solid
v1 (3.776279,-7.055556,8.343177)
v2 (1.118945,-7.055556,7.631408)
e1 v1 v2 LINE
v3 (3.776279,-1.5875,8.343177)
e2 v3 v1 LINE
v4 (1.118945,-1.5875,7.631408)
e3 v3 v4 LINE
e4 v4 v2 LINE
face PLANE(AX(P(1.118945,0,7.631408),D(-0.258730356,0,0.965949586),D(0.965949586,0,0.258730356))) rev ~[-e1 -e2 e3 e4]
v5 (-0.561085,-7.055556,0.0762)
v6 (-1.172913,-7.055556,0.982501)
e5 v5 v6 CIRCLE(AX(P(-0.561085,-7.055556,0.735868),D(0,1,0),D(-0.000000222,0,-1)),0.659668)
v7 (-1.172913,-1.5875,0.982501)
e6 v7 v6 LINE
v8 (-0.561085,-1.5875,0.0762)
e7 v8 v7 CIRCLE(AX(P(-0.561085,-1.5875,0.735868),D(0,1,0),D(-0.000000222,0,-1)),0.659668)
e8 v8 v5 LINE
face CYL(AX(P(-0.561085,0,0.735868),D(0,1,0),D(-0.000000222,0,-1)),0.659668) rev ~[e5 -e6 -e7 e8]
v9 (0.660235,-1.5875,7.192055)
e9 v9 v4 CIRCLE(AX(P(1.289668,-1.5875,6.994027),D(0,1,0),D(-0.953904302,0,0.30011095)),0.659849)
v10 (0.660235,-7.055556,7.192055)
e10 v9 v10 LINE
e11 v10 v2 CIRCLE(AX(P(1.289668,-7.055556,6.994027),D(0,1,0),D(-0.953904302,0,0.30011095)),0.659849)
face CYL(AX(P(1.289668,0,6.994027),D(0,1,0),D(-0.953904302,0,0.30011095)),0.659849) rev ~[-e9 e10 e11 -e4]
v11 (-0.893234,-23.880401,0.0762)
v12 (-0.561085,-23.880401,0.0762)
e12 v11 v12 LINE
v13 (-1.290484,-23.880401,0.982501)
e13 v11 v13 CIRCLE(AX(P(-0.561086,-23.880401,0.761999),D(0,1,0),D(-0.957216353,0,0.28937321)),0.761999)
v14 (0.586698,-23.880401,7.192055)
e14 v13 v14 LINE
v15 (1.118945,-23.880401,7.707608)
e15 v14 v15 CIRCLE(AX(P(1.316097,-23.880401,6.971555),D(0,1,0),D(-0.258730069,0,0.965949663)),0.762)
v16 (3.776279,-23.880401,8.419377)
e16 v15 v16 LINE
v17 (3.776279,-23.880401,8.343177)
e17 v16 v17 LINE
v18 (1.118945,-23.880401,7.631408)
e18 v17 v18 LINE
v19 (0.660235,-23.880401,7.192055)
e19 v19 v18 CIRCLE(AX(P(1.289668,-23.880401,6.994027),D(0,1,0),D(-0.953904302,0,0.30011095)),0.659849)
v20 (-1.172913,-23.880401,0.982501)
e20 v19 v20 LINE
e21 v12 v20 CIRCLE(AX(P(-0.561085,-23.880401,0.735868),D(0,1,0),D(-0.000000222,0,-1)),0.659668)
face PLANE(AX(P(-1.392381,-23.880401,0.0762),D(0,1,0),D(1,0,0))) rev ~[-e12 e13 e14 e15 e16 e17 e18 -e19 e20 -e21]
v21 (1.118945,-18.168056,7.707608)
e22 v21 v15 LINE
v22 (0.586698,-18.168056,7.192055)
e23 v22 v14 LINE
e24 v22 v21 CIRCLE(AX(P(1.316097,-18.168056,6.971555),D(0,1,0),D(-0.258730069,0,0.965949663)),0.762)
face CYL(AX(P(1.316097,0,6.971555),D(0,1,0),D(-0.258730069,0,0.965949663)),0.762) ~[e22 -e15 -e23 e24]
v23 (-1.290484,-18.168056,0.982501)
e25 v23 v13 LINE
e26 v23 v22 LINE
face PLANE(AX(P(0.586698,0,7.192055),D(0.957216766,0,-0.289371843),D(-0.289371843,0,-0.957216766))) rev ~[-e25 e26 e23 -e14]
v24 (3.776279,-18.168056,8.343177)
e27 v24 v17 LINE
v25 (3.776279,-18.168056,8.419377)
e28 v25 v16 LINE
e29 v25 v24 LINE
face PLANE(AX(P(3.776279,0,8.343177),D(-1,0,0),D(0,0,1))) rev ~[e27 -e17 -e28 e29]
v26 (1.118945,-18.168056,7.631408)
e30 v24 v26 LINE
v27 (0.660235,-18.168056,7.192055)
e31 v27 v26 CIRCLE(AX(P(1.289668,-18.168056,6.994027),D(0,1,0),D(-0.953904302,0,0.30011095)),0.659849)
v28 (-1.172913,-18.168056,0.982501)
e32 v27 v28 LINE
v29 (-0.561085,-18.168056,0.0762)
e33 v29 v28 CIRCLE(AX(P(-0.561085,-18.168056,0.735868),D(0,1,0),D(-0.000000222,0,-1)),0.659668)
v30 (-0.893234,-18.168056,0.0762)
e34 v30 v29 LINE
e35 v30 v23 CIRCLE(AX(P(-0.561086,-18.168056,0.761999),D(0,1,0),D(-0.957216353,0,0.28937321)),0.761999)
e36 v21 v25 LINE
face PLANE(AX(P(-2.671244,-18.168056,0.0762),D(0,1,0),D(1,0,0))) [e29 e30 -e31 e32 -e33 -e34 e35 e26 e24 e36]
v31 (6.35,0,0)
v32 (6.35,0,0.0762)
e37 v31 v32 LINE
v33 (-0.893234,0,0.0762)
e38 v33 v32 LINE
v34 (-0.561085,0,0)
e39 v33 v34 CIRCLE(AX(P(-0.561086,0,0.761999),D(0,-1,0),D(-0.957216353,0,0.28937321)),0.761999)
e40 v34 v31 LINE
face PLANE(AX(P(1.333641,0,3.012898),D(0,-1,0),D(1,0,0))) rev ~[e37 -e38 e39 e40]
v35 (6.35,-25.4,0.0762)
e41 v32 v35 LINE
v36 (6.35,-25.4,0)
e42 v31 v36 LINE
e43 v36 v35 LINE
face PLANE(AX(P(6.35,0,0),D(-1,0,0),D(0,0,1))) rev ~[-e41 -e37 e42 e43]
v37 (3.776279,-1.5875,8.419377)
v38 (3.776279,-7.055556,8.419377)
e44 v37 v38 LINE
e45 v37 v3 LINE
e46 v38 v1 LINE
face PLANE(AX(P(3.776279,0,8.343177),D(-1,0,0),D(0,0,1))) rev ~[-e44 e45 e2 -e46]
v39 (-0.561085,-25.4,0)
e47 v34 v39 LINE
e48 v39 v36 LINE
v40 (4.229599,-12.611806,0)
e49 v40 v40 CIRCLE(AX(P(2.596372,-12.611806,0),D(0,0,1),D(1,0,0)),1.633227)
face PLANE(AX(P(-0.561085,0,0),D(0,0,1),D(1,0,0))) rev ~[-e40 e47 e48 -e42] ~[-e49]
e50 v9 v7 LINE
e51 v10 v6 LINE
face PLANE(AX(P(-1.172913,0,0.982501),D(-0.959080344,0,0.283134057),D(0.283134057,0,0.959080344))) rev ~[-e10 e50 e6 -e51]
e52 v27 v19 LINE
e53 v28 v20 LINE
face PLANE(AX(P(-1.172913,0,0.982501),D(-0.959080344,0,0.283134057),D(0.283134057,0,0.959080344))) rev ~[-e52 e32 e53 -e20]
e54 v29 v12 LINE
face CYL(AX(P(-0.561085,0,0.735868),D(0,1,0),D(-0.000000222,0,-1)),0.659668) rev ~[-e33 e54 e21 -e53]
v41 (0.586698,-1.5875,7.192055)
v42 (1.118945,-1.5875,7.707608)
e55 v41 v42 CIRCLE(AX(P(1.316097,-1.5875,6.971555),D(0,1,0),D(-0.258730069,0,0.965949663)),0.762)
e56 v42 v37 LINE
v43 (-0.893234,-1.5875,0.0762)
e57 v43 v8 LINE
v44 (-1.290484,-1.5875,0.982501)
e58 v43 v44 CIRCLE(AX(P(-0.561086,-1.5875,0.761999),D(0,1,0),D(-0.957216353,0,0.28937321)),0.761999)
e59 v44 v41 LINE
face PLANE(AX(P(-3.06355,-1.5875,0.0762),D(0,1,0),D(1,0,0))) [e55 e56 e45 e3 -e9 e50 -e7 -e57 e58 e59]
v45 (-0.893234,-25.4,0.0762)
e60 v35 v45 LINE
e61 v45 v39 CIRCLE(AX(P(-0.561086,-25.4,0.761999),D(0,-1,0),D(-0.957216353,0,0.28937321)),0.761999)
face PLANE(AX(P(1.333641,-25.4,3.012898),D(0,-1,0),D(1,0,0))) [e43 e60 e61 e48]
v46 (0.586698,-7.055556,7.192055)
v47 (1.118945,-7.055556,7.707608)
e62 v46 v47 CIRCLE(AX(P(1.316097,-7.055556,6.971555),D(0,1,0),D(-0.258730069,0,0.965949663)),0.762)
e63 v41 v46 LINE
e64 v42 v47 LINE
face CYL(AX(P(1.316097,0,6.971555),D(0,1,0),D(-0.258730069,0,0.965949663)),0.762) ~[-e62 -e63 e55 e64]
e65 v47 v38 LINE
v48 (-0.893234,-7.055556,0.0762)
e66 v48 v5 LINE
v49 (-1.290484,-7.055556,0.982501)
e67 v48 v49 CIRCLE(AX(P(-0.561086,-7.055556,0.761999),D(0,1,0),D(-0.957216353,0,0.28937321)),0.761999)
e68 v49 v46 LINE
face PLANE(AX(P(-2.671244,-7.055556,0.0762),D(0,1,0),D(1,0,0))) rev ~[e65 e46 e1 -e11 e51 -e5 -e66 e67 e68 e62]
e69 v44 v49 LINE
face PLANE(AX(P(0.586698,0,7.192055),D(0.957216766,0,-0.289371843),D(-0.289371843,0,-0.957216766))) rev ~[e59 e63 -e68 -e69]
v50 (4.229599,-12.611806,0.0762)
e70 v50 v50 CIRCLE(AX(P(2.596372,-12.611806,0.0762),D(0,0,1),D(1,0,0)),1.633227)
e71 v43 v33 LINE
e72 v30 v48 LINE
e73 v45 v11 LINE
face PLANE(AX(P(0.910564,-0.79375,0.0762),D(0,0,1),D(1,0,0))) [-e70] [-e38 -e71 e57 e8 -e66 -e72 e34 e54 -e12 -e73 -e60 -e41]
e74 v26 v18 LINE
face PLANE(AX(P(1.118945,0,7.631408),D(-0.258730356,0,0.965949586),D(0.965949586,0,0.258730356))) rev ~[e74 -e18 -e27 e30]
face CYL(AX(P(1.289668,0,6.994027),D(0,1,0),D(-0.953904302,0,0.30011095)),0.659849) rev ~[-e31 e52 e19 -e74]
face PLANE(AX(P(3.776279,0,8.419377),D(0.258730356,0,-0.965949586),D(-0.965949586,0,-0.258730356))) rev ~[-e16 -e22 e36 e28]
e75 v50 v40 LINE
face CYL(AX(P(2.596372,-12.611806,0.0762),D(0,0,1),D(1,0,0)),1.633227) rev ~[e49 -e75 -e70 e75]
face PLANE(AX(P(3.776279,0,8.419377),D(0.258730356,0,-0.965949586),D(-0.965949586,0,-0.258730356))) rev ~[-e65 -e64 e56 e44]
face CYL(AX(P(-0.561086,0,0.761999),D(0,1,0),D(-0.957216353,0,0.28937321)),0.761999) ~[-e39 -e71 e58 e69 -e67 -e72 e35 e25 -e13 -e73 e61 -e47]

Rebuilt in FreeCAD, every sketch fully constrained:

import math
import FreeCAD as App
import Part
import Sketcher
from FreeCAD import Vector
Q = App.Units.Quantity


def add_polygon(sketch, points):
    """Adds a closed chain of lines whose ends are joined by coincident constraints."""
    first, n = sketch.GeometryCount, len(points)
    for a, b in zip(points, points[1:] + points[:1]):
        sketch.addGeometry(Part.LineSegment(App.Vector(*a, 0), App.Vector(*b, 0)), False)
    for i in range(n):
        sketch.addConstraint(Sketcher.Constraint("Coincident", first + i, 2, first + (i + 1) % n, 1))

doc = App.newDocument("Part")
body = doc.addObject("PartDesign::Body", "Body")

sketch1 = body.newObject("Sketcher::SketchObject", "Sketch")
sketch1.AttachmentSupport = (doc.getObject("XZ_Plane"), [""])
sketch1.MapMode = "FlatFace"
sketch1.addGeometry([
    Part.LineSegment(Vector(-0.56, 0, 0), Vector(6.35, 0, 0)),
    Part.LineSegment(Vector(6.35, 0, 0), Vector(6.35, 0.08, 0)),
    Part.LineSegment(Vector(6.35, 0.08, 0), Vector(-0.56, 0.08, 0)),
    Part.ArcOfCircle(Part.Circle(Vector(-0.56, 0.74, 0), Vector(0, 0, 1), 0.66), math.radians(158), math.radians(270)),
    Part.LineSegment(Vector(-1.17, 0.98, 0), Vector(0.66, 7.19, 0)),
    Part.ArcOfCircle(Part.Circle(Vector(1.29, 6.99, 0), Vector(0, 0, 1), 0.66), math.radians(105), math.radians(163)),
    Part.LineSegment(Vector(1.12, 7.63, 0), Vector(3.78, 8.34, 0)),
    Part.LineSegment(Vector(3.78, 8.34, 0), Vector(3.78, 8.42, 0)),
    Part.LineSegment(Vector(3.78, 8.42, 0), Vector(1.12, 7.71, 0)),
    Part.ArcOfCircle(Part.Circle(Vector(1.32, 6.97, 0), Vector(0, 0, 1), 0.76), math.radians(105), math.radians(163)),
    Part.LineSegment(Vector(0.59, 7.19, 0), Vector(-1.29, 0.98, 0)),
    Part.ArcOfCircle(Part.Circle(Vector(-0.56, 0.76, 0), Vector(0, 0, 1), 0.76), math.radians(163), math.radians(270)),
], False)
sketch1.addConstraint([
    Sketcher.Constraint("Coincident", 0, 2, 1, 1),
    Sketcher.Constraint("Coincident", 1, 2, 2, 1),
    Sketcher.Constraint("Tangent", 2, 2, 3, 2),
    Sketcher.Constraint("Coincident", 3, 1, 4, 1),
    Sketcher.Constraint("Coincident", 4, 2, 5, 2),
    Sketcher.Constraint("Tangent", 5, 1, 6, 1),
    Sketcher.Constraint("Coincident", 6, 2, 7, 1),
    Sketcher.Constraint("Coincident", 7, 2, 8, 1),
    Sketcher.Constraint("Tangent", 8, 2, 9, 1),
    Sketcher.Constraint("Tangent", 9, 2, 10, 1),
    Sketcher.Constraint("Tangent", 10, 2, 11, 1),
    Sketcher.Constraint("Tangent", 11, 2, 0, 1),
    Sketcher.Constraint("Horizontal", 0),
    Sketcher.Constraint("Vertical", 1),
    Sketcher.Constraint("Horizontal", 2),
    Sketcher.Constraint("Vertical", 7),
    Sketcher.Constraint("Equal", 9, 11),
    Sketcher.Constraint("PointOnObject", 0, 2, -1),
    Sketcher.Constraint("Parallel", 6, 8),
    Sketcher.Constraint("Horizontal", 4, 2, 9, 2),
    Sketcher.Constraint("Horizontal", 3, 1, 10, 2),
    Sketcher.Constraint("Vertical", 3, 3, 11, 3),
    Sketcher.Constraint("Vertical", 5, 1, 8, 2),
    Sketcher.Constraint("Equal", 1, 7),
    Sketcher.Constraint("Radius", 9, Q("0.03 in")),
    Sketcher.Constraint("DistanceY", 1, 1, 1, 2, Q("0.003 in")),
    Sketcher.Constraint("DistanceX", -1, 1, 0, 2, Q("0.25 in")),
    Sketcher.Constraint("Radius", 5, Q("0.659849 mm")),
    Sketcher.Constraint("Radius", 3, Q("0.659668 mm")),
    Sketcher.Constraint("DistanceY", -1, 1, 3, 1, Q("0.982501 mm")),
    Sketcher.Constraint("DistanceX", 0, 1, 0, 2, Q("6.911085 mm")),
    Sketcher.Constraint("DistanceY", -1, 1, 5, 1, Q("7.631408 mm")),
    Sketcher.Constraint("DistanceX", -1, 1, 6, 2, Q("3.776279 mm")),
    Sketcher.Constraint("DistanceY", 3, 3, 5, 3, Q("6.258159 mm")),
])
pad1 = body.newObject("PartDesign::Pad", "Pad")
pad1.Profile = sketch1
pad1.Length = Q("1 in")

sketch2 = body.newObject("Sketcher::SketchObject", "Sketch001")
sketch2.AttachmentSupport = (doc.getObject("XY_Plane"), [""])
sketch2.MapMode = "FlatFace"
sketch2.AttachmentOffset = App.Placement(Vector(0, 0, 0.003 * 25.4), App.Rotation())
add_polygon(sketch2, [(-2.7, -7.1), (-2.7, -18.2), (5.5, -18.2), (5.5, -7.1)])
add_polygon(sketch2, [(-3.1, 0), (-3.1, -1.6), (4.9, -1.6), (4.9, 0)])
add_polygon(sketch2, [(-1.4, -23.9), (-1.4, -25.5), (7.4, -25.5), (7.4, -23.9)])
sketch2.addConstraint([
    Sketcher.Constraint("Vertical", 0),
    Sketcher.Constraint("Horizontal", 1),
    Sketcher.Constraint("Vertical", 2),
    Sketcher.Constraint("Horizontal", 3),
    Sketcher.Constraint("Vertical", 4),
    Sketcher.Constraint("Horizontal", 5),
    Sketcher.Constraint("Vertical", 6),
    Sketcher.Constraint("Horizontal", 7),
    Sketcher.Constraint("Vertical", 8),
    Sketcher.Constraint("Horizontal", 9),
    Sketcher.Constraint("Vertical", 10),
    Sketcher.Constraint("Horizontal", 11),
    Sketcher.Constraint("PointOnObject", 6, 2, -1),
    Sketcher.Constraint("Equal", 6, 8),
    Sketcher.Constraint("DistanceY", 0, 2, 0, 1, Q("0.4375 in")),
    Sketcher.Constraint("DistanceY", 4, 2, 4, 1, Q("0.0625 in")),
    Sketcher.Constraint("DistanceX", 1, 1, 1, 2, Q("8.148129 mm")),
    Sketcher.Constraint("DistanceX", 5, 1, 5, 2, Q("7.948229 mm")),
    Sketcher.Constraint("DistanceX", 9, 1, 9, 2, Q("8.837929 mm")),
    Sketcher.Constraint("DistanceY", 8, 2, -1, 1, Q("25.467901 mm")),
    Sketcher.Constraint("DistanceX", 4, 2, -1, 1, Q("3.06355 mm")),
    Sketcher.Constraint("DistanceX", 8, 2, -1, 1, Q("1.392381 mm")),
    Sketcher.Constraint("DistanceX", 0, 2, -1, 1, Q("2.671244 mm")),
    Sketcher.Constraint("DistanceY", 0, 2, -1, 1, Q("18.168056 mm")),
])
pocket1 = body.newObject("PartDesign::Pocket", "Pocket")
pocket1.Profile = sketch2
pocket1.Length = Q("1 in")
pocket1.Reversed = True

sketch3 = body.newObject("Sketcher::SketchObject", "Sketch002")
sketch3.AttachmentSupport = (doc.getObject("XY_Plane"), [""])
sketch3.MapMode = "FlatFace"
sketch3.AttachmentOffset = App.Placement(Vector(0, 0, 0.003 * 25.4), App.Rotation())
sketch3.addGeometry(Part.Circle(Vector(2.6, -12.6, 0), Vector(0, 0, 1), 1.6), False)
sketch3.addConstraint([
    Sketcher.Constraint("Diameter", 0, Q("3.266454 mm")),
    Sketcher.Constraint("DistanceX", -1, 1, 0, 3, Q("2.596372 mm")),
    Sketcher.Constraint("DistanceY", 0, 3, -1, 1, Q("12.611806 mm")),
])
pocket2 = body.newObject("PartDesign::Pocket", "Pocket001")
pocket2.Profile = sketch3
pocket2.Length = Q("1 in")

doc.recompute()
